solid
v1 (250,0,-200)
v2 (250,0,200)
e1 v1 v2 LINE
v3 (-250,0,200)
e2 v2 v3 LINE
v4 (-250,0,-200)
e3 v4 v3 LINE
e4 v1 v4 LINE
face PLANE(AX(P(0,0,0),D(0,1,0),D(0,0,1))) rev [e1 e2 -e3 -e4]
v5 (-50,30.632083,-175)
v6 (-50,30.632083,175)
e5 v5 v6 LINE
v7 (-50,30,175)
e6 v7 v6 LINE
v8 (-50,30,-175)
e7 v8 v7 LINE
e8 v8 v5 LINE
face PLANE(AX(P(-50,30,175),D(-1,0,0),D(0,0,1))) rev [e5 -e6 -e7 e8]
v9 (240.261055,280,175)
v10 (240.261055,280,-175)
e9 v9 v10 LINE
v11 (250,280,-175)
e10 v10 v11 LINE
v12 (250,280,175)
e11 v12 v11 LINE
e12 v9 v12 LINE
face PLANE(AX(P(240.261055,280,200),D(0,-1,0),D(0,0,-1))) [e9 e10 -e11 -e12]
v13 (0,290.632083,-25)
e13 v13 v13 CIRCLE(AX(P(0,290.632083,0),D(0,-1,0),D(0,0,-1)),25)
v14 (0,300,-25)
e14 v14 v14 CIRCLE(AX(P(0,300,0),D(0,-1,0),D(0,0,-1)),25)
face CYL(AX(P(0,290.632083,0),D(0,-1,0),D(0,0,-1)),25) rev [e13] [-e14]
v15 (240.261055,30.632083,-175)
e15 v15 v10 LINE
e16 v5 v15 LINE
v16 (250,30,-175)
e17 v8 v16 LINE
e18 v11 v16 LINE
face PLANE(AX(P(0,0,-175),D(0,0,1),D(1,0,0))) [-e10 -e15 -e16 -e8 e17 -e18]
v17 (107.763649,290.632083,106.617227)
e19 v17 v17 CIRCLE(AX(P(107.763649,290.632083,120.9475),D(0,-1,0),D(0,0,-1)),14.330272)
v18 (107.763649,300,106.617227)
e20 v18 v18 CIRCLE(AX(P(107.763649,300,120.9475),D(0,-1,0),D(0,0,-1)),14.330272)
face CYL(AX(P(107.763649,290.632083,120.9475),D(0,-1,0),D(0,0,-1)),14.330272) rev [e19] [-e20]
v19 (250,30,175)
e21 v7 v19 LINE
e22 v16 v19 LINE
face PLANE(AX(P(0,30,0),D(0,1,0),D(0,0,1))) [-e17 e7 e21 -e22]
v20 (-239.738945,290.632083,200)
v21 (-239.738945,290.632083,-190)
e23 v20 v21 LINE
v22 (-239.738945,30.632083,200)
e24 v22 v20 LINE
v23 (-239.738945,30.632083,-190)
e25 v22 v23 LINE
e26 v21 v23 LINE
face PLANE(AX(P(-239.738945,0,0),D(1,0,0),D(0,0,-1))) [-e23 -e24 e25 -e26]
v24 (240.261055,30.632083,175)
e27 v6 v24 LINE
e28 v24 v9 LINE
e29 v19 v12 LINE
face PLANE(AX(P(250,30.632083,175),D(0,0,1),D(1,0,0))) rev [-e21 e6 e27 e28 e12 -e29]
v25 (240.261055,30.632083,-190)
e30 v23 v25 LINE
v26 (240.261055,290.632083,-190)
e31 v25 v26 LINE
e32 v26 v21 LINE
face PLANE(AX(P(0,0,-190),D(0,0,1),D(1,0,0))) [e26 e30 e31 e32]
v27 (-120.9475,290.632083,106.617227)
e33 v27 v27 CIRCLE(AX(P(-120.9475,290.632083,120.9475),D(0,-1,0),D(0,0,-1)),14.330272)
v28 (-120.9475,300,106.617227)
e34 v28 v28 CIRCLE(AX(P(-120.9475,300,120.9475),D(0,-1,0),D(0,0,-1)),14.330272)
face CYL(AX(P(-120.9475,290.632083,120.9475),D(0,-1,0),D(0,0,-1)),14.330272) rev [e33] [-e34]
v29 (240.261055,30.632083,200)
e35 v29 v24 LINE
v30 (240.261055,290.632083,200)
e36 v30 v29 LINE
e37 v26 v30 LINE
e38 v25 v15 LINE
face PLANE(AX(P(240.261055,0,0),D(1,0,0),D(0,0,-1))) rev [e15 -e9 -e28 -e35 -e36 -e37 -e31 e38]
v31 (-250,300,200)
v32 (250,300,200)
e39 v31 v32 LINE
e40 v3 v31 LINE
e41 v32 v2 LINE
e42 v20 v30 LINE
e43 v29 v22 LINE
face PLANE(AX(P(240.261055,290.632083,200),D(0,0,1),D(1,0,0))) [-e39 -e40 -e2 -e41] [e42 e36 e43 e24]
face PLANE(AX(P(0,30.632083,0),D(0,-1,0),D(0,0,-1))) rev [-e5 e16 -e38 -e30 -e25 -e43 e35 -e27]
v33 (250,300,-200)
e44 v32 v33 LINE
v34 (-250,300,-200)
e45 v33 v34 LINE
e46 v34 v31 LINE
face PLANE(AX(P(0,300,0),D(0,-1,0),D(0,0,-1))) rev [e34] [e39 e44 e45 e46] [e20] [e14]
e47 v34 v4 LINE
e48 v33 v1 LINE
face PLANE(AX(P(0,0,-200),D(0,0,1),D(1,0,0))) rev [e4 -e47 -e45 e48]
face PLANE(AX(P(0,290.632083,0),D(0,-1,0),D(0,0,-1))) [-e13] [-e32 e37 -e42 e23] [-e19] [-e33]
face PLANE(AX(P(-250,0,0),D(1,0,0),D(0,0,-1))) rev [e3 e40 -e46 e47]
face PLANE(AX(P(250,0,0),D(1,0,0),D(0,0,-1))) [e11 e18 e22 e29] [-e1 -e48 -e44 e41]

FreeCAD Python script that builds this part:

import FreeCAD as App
import Part
import Sketcher
from FreeCAD import Vector
Q = App.Units.Quantity

doc = App.newDocument("Part")
body = doc.addObject("PartDesign::Body", "Body")

# Sketch on YZ plane
sketch1 = body.newObject("Sketcher::SketchObject", "Sketch")
sketch1.AttachmentSupport = (doc.getObject("YZ_Plane"), [""])
sketch1.MapMode = "FlatFace"
sketch1.AttachmentOffset = App.Placement(Vector(0, 0, 250), App.Rotation())
sketch1.addGeometry([
    Part.LineSegment(Vector(290.632083, 200, 0), Vector(280, 200, 0)),
    Part.LineSegment(Vector(280, 200, 0), Vector(280, -175, 0)),
    Part.LineSegment(Vector(280, -175, 0), Vector(290.632083, -175, 0)),
    Part.LineSegment(Vector(290.632083, -175, 0), Vector(290.632083, 200, 0)),
], False)
sketch1.addConstraint([
    Sketcher.Constraint("Coincident", 0, 2, 1, 1),
    Sketcher.Constraint("Coincident", 1, 2, 2, 1),
    Sketcher.Constraint("Coincident", 2, 2, 3, 1),
    Sketcher.Constraint("Coincident", 3, 2, 0, 1),
    Sketcher.Constraint("Horizontal", 0),
    Sketcher.Constraint("Vertical", 1),
    Sketcher.Constraint("Horizontal", 2),
    Sketcher.Constraint("Vertical", 3),
    Sketcher.Constraint("DistanceY", 1, 2, 1, 1, Q("375 mm")),
    Sketcher.Constraint("DistanceX", -1, 1, 0, 2, Q("280 mm")),
    Sketcher.Constraint("DistanceY", -1, 1, 0, 2, Q("200 mm")),
    Sketcher.Constraint("DistanceX", 0, 2, 0, 1, Q("10.632083 mm")),
])
pad1 = body.newObject("PartDesign::Pad", "Pad")
pad1.Profile = sketch1
pad1.Length = 9.738945
pad1.Reversed = True

# Sketch on XZ plane
sketch2 = body.newObject("Sketcher::SketchObject", "Sketch001")
sketch2.AttachmentSupport = (doc.getObject("XZ_Plane"), [""])
sketch2.MapMode = "FlatFace"
sketch2.AttachmentOffset = App.Placement(Vector(0, 0, -280), App.Rotation())
sketch2.addGeometry([
    Part.LineSegment(Vector(240.261055, 200, 0), Vector(240.261055, 175, 0)),
    Part.LineSegment(Vector(240.261055, 175, 0), Vector(250, 175, 0)),
    Part.LineSegment(Vector(250, 175, 0), Vector(250, 200, 0)),
    Part.LineSegment(Vector(250, 200, 0), Vector(240.261055, 200, 0)),
], False)
sketch2.addConstraint([
    Sketcher.Constraint("Coincident", 0, 2, 1, 1),
    Sketcher.Constraint("Coincident", 1, 2, 2, 1),
    Sketcher.Constraint("Coincident", 2, 2, 3, 1),
    Sketcher.Constraint("Coincident", 3, 2, 0, 1),
    Sketcher.Constraint("Vertical", 0),
    Sketcher.Constraint("Horizontal", 1),
    Sketcher.Constraint("Vertical", 2),
    Sketcher.Constraint("Horizontal", 3),
    Sketcher.Constraint("DistanceY", 0, 2, 0, 1, Q("25 mm")),
    Sketcher.Constraint("DistanceY", -1, 1, 0, 2, Q("175 mm")),
    Sketcher.Constraint("DistanceX", -1, 1, 1, 2, Q("250 mm")),
    Sketcher.Constraint("DistanceX", 1, 1, 1, 2, Q("9.738945 mm")),
])
pad2 = body.newObject("PartDesign::Pad", "Pad001")
pad2.Profile = sketch2
pad2.Length = 249.367917

# Sketch on XZ plane
sketch3 = body.newObject("Sketcher::SketchObject", "Sketch002")
sketch3.AttachmentSupport = (doc.getObject("XZ_Plane"), [""])
sketch3.MapMode = "FlatFace"
sketch3.AttachmentOffset = App.Placement(Vector(0, 0, -30.632083), App.Rotation())
sketch3.addGeometry([
    Part.LineSegment(Vector(-50, -175, 0), Vector(-50, 175, 0)),  # 0
    Part.LineSegment(Vector(-50, 175, 0), Vector(250, 175, 0)),  # 1
    Part.LineSegment(Vector(250, 175, 0), Vector(250, 200, 0)),  # 2
    Part.LineSegment(Vector(250, 200, 0), Vector(-239.738945, 200, 0)),  # 3
    Part.LineSegment(Vector(-239.738945, 200, 0), Vector(-239.738945, -175, 0)),  # 4
    Part.LineSegment(Vector(-239.738945, -175, 0), Vector(-50, -175, 0)),  # 5
], False)
sketch3.addConstraint([
    Sketcher.Constraint("Coincident", 0, 2, 1, 1),
    Sketcher.Constraint("Coincident", 1, 2, 2, 1),
    Sketcher.Constraint("Coincident", 2, 2, 3, 1),
    Sketcher.Constraint("Coincident", 3, 2, 4, 1),
    Sketcher.Constraint("Coincident", 4, 2, 5, 1),
    Sketcher.Constraint("Coincident", 5, 2, 0, 1),
    Sketcher.Constraint("Vertical", 0),
    Sketcher.Constraint("Horizontal", 1),
    Sketcher.Constraint("Vertical", 2),
    Sketcher.Constraint("Horizontal", 3),
    Sketcher.Constraint("Vertical", 4),
    Sketcher.Constraint("Horizontal", 5),
    Sketcher.Constraint("DistanceX", 1, 1, 1, 2, Q("300 mm")),
    Sketcher.Constraint("DistanceY", 0, 1, 0, 2, Q("350 mm")),
    Sketcher.Constraint("DistanceY", 2, 1, 2, 2, Q("25 mm")),
    Sketcher.Constraint("DistanceX", 0, 2, -1, 1, Q("50 mm")),
    Sketcher.Constraint("DistanceY", -1, 1, 0, 2, Q("175 mm")),
    Sketcher.Constraint("DistanceX", 3, 2, 3, 1, Q("489.738945 mm")),
])
pad3 = body.newObject("PartDesign::Pad", "Pad002")
pad3.Profile = sketch3
pad3.Length = 0.632083

# Sketch on XZ plane
sketch4 = body.newObject("Sketcher::SketchObject", "Sketch003")
sketch4.AttachmentSupport = (doc.getObject("XZ_Plane"), [""])
sketch4.MapMode = "FlatFace"
sketch4.AttachmentOffset = App.Placement(Vector(0, 0, -30), App.Rotation())
sketch4.addGeometry([
    Part.LineSegment(Vector(-239.738945, 200, 0), Vector(-239.738945, -175, 0)),
    Part.LineSegment(Vector(-239.738945, -175, 0), Vector(250, -175, 0)),
    Part.LineSegment(Vector(250, -175, 0), Vector(250, 200, 0)),
    Part.LineSegment(Vector(250, 200, 0), Vector(-239.738945, 200, 0)),
], False)
sketch4.addConstraint([
    Sketcher.Constraint("Coincident", 0, 2, 1, 1),
    Sketcher.Constraint("Coincident", 1, 2, 2, 1),
    Sketcher.Constraint("Coincident", 2, 2, 3, 1),
    Sketcher.Constraint("Coincident", 3, 2, 0, 1),
    Sketcher.Constraint("Vertical", 0),
    Sketcher.Constraint("Horizontal", 1),
    Sketcher.Constraint("Vertical", 2),
    Sketcher.Constraint("Horizontal", 3),
    Sketcher.Constraint("DistanceY", 0, 2, 0, 1, Q("375 mm")),
    Sketcher.Constraint("DistanceY", 0, 2, -1, 1, Q("175 mm")),
    Sketcher.Constraint("DistanceX", -1, 1, 1, 2, Q("250 mm")),
    Sketcher.Constraint("DistanceX", 1, 1, 1, 2, Q("489.738945 mm")),
])
pad4 = body.newObject("PartDesign::Pad", "Pad003")
pad4.Profile = sketch4
pad4.Length = 30

# Sketch on XY plane
sketch5 = body.newObject("Sketcher::SketchObject", "Sketch004")
sketch5.AttachmentSupport = (doc.getObject("XY_Plane"), [""])
sketch5.MapMode = "FlatFace"
sketch5.AttachmentOffset = App.Placement(Vector(0, 0, -175), App.Rotation())
sketch5.addGeometry([
    Part.LineSegment(Vector(250, 290.632083, 0), Vector(250, 0, 0)),
    Part.LineSegment(Vector(250, 0, 0), Vector(-239.738945, 0, 0)),
    Part.LineSegment(Vector(-239.738945, 0, 0), Vector(-239.738945, 290.632083, 0)),
    Part.LineSegment(Vector(-239.738945, 290.632083, 0), Vector(250, 290.632083, 0)),
], False)
sketch5.addConstraint([
    Sketcher.Constraint("Coincident", 0, 2, 1, 1),
    Sketcher.Constraint("Coincident", 1, 2, 2, 1),
    Sketcher.Constraint("Coincident", 2, 2, 3, 1),
    Sketcher.Constraint("Coincident", 3, 2, 0, 1),
    Sketcher.Constraint("Vertical", 0),
    Sketcher.Constraint("Horizontal", 1),
    Sketcher.Constraint("Vertical", 2),
    Sketcher.Constraint("Horizontal", 3),
    Sketcher.Constraint("PointOnObject", 0, 2, -1),
    Sketcher.Constraint("DistanceX", -1, 1, 0, 2, Q("250 mm")),
    Sketcher.Constraint("DistanceX", 1, 2, 1, 1, Q("489.738945 mm")),
    Sketcher.Constraint("DistanceY", 0, 2, 0, 1, Q("290.632083 mm")),
])
pad5 = body.newObject("PartDesign::Pad", "Pad004")
pad5.Profile = sketch5
pad5.Length = 25
pad5.Reversed = True

# Sketch on YZ plane
sketch6 = body.newObject("Sketcher::SketchObject", "Sketch005")
sketch6.AttachmentSupport = (doc.getObject("YZ_Plane"), [""])
sketch6.MapMode = "FlatFace"
sketch6.AttachmentOffset = App.Placement(Vector(0, 0, -239.738945), App.Rotation())
sketch6.addGeometry([
    Part.LineSegment(Vector(290.632083, -200, 0), Vector(0, -200, 0)),
    Part.LineSegment(Vector(0, -200, 0), Vector(0, 200, 0)),
    Part.LineSegment(Vector(0, 200, 0), Vector(290.632083, 200, 0)),
    Part.LineSegment(Vector(290.632083, 200, 0), Vector(290.632083, -200, 0)),
], False)
sketch6.addConstraint([
    Sketcher.Constraint("Coincident", 0, 2, 1, 1),
    Sketcher.Constraint("Coincident", 1, 2, 2, 1),
    Sketcher.Constraint("Coincident", 2, 2, 3, 1),
    Sketcher.Constraint("Coincident", 3, 2, 0, 1),
    Sketcher.Constraint("Horizontal", 0),
    Sketcher.Constraint("Vertical", 1),
    Sketcher.Constraint("Horizontal", 2),
    Sketcher.Constraint("Vertical", 3),
    Sketcher.Constraint("Symmetric", 0, 2, 1, 2, -1, 1),
    Sketcher.Constraint("DistanceY", 1, 1, 1, 2, Q("400 mm")),
    Sketcher.Constraint("DistanceX", 0, 2, 0, 1, Q("290.632083 mm")),
])
pad6 = body.newObject("PartDesign::Pad", "Pad005")
pad6.Profile = sketch6
pad6.Length = 10.261055
pad6.Reversed = True

# Sketch on XZ plane
sketch7 = body.newObject("Sketcher::SketchObject", "Sketch006")
sketch7.AttachmentSupport = (doc.getObject("XZ_Plane"), [""])
sketch7.MapMode = "FlatFace"
sketch7.AttachmentOffset = App.Placement(Vector(0, 0, -290.632083), App.Rotation())
sketch7.addGeometry([
    Part.LineSegment(Vector(250, 200, 0), Vector(250, -200, 0)),
    Part.LineSegment(Vector(250, -200, 0), Vector(-250, -200, 0)),
    Part.LineSegment(Vector(-250, -200, 0), Vector(-250, 200, 0)),
    Part.LineSegment(Vector(-250, 200, 0), Vector(250, 200, 0)),
], False)
sketch7.addConstraint([
    Sketcher.Constraint("Coincident", 0, 2, 1, 1),
    Sketcher.Constraint("Coincident", 1, 2, 2, 1),
    Sketcher.Constraint("Coincident", 2, 2, 3, 1),
    Sketcher.Constraint("Coincident", 3, 2, 0, 1),
    Sketcher.Constraint("Vertical", 0),
    Sketcher.Constraint("Horizontal", 1),
    Sketcher.Constraint("Vertical", 2),
    Sketcher.Constraint("Horizontal", 3),
    Sketcher.Constraint("Symmetric", 0, 2, 2, 2, -1, 1),
    Sketcher.Constraint("DistanceX", 1, 2, 1, 1, Q("500 mm")),
    Sketcher.Constraint("DistanceY", 0, 2, 0, 1, Q("400 mm")),
])
pad7 = body.newObject("PartDesign::Pad", "Pad006")
pad7.Profile = sketch7
pad7.Length = 9.367917
pad7.Reversed = True

# Sketch on XY plane
sketch8 = body.newObject("Sketcher::SketchObject", "Sketch007")
sketch8.AttachmentSupport = (doc.getObject("XY_Plane"), [""])
sketch8.MapMode = "FlatFace"
sketch8.AttachmentOffset = App.Placement(Vector(0, 0, -175), App.Rotation())
sketch8.addGeometry([
    Part.LineSegment(Vector(-239.738945, 290.632083, 0), Vector(-239.738945, 30.632083, 0)),
    Part.LineSegment(Vector(-239.738945, 30.632083, 0), Vector(240.261055, 30.632083, 0)),
    Part.LineSegment(Vector(240.261055, 30.632083, 0), Vector(240.261055, 290.632083, 0)),
    Part.LineSegment(Vector(240.261055, 290.632083, 0), Vector(-239.738945, 290.632083, 0)),
], False)
sketch8.addConstraint([
    Sketcher.Constraint("Coincident", 0, 2, 1, 1),
    Sketcher.Constraint("Coincident", 1, 2, 2, 1),
    Sketcher.Constraint("Coincident", 2, 2, 3, 1),
    Sketcher.Constraint("Coincident", 3, 2, 0, 1),
    Sketcher.Constraint("Vertical", 0),
    Sketcher.Constraint("Horizontal", 1),
    Sketcher.Constraint("Vertical", 2),
    Sketcher.Constraint("Horizontal", 3),
    Sketcher.Constraint("DistanceX", 1, 1, 1, 2, Q("480 mm")),
    Sketcher.Constraint("DistanceY", 0, 2, 0, 1, Q("260 mm")),
    Sketcher.Constraint("DistanceX", 0, 2, -1, 1, Q("239.738945 mm")),
    Sketcher.Constraint("DistanceY", -1, 1, 0, 2, Q("30.632083 mm")),
])
pocket1 = body.newObject("PartDesign::Pocket", "Pocket")
pocket1.Profile = sketch8
pocket1.Length = 15

# Sketch on XZ plane
sketch9 = body.newObject("Sketcher::SketchObject", "Sketch008")
sketch9.AttachmentSupport = (doc.getObject("XZ_Plane"), [""])
sketch9.MapMode = "FlatFace"
sketch9.AttachmentOffset = App.Placement(Vector(0, 0, -290.632083), App.Rotation())
sketch9.addGeometry([
    Part.Circle(Vector(107.763649, 120.9475, 0), Vector(0, 0, 1), 14.330272),
    Part.Circle(Vector(-120.9475, 120.9475, 0), Vector(0, 0, 1), 14.330272),
], False)
sketch9.addConstraint([
    Sketcher.Constraint("Equal", 0, 1),
    Sketcher.Constraint("Horizontal", 0, 3, 1, 3),
    Sketcher.Constraint("Diameter", 0, Q("28.660545 mm")),
    Sketcher.Constraint("DistanceY", -1, 1, 0, 3, Q("120.9475 mm")),
    Sketcher.Constraint("DistanceX", 1, 3, -1, 1, Q("120.9475 mm")),
    Sketcher.Constraint("DistanceX", -1, 1, 0, 3, Q("107.763649 mm")),
])
doc.recompute()
hole = body.newObject("PartDesign::Hole", "Hole")
hole.Profile = sketch9
hole.ThreadType = "None"
hole.Diameter = 28.660545
hole.DepthType = "Dimension"
hole.Depth = 9.367917
hole.DrillPoint = "Flat"

# Sketch on XZ plane
sketch10 = body.newObject("Sketcher::SketchObject", "Sketch009")
sketch10.AttachmentSupport = (doc.getObject("XZ_Plane"), [""])
sketch10.MapMode = "FlatFace"
sketch10.AttachmentOffset = App.Placement(Vector(0, 0, -290.632083), App.Rotation())
sketch10.addGeometry(Part.Circle(Vector(0, 0, 0), Vector(0, 0, 1), 25), False)
sketch10.addConstraint([
    Sketcher.Constraint("Coincident", 0, 3, -1, 1),
    Sketcher.Constraint("Diameter", 0, Q("50 mm")),
])
doc.recompute()
hole2 = body.newObject("PartDesign::Hole", "Hole001")
hole2.Profile = sketch10
hole2.ThreadType = "None"
hole2.Diameter = 50
hole2.DepthType = "Dimension"
hole2.Depth = 9.367917
hole2.DrillPoint = "Flat"

doc.recompute()
